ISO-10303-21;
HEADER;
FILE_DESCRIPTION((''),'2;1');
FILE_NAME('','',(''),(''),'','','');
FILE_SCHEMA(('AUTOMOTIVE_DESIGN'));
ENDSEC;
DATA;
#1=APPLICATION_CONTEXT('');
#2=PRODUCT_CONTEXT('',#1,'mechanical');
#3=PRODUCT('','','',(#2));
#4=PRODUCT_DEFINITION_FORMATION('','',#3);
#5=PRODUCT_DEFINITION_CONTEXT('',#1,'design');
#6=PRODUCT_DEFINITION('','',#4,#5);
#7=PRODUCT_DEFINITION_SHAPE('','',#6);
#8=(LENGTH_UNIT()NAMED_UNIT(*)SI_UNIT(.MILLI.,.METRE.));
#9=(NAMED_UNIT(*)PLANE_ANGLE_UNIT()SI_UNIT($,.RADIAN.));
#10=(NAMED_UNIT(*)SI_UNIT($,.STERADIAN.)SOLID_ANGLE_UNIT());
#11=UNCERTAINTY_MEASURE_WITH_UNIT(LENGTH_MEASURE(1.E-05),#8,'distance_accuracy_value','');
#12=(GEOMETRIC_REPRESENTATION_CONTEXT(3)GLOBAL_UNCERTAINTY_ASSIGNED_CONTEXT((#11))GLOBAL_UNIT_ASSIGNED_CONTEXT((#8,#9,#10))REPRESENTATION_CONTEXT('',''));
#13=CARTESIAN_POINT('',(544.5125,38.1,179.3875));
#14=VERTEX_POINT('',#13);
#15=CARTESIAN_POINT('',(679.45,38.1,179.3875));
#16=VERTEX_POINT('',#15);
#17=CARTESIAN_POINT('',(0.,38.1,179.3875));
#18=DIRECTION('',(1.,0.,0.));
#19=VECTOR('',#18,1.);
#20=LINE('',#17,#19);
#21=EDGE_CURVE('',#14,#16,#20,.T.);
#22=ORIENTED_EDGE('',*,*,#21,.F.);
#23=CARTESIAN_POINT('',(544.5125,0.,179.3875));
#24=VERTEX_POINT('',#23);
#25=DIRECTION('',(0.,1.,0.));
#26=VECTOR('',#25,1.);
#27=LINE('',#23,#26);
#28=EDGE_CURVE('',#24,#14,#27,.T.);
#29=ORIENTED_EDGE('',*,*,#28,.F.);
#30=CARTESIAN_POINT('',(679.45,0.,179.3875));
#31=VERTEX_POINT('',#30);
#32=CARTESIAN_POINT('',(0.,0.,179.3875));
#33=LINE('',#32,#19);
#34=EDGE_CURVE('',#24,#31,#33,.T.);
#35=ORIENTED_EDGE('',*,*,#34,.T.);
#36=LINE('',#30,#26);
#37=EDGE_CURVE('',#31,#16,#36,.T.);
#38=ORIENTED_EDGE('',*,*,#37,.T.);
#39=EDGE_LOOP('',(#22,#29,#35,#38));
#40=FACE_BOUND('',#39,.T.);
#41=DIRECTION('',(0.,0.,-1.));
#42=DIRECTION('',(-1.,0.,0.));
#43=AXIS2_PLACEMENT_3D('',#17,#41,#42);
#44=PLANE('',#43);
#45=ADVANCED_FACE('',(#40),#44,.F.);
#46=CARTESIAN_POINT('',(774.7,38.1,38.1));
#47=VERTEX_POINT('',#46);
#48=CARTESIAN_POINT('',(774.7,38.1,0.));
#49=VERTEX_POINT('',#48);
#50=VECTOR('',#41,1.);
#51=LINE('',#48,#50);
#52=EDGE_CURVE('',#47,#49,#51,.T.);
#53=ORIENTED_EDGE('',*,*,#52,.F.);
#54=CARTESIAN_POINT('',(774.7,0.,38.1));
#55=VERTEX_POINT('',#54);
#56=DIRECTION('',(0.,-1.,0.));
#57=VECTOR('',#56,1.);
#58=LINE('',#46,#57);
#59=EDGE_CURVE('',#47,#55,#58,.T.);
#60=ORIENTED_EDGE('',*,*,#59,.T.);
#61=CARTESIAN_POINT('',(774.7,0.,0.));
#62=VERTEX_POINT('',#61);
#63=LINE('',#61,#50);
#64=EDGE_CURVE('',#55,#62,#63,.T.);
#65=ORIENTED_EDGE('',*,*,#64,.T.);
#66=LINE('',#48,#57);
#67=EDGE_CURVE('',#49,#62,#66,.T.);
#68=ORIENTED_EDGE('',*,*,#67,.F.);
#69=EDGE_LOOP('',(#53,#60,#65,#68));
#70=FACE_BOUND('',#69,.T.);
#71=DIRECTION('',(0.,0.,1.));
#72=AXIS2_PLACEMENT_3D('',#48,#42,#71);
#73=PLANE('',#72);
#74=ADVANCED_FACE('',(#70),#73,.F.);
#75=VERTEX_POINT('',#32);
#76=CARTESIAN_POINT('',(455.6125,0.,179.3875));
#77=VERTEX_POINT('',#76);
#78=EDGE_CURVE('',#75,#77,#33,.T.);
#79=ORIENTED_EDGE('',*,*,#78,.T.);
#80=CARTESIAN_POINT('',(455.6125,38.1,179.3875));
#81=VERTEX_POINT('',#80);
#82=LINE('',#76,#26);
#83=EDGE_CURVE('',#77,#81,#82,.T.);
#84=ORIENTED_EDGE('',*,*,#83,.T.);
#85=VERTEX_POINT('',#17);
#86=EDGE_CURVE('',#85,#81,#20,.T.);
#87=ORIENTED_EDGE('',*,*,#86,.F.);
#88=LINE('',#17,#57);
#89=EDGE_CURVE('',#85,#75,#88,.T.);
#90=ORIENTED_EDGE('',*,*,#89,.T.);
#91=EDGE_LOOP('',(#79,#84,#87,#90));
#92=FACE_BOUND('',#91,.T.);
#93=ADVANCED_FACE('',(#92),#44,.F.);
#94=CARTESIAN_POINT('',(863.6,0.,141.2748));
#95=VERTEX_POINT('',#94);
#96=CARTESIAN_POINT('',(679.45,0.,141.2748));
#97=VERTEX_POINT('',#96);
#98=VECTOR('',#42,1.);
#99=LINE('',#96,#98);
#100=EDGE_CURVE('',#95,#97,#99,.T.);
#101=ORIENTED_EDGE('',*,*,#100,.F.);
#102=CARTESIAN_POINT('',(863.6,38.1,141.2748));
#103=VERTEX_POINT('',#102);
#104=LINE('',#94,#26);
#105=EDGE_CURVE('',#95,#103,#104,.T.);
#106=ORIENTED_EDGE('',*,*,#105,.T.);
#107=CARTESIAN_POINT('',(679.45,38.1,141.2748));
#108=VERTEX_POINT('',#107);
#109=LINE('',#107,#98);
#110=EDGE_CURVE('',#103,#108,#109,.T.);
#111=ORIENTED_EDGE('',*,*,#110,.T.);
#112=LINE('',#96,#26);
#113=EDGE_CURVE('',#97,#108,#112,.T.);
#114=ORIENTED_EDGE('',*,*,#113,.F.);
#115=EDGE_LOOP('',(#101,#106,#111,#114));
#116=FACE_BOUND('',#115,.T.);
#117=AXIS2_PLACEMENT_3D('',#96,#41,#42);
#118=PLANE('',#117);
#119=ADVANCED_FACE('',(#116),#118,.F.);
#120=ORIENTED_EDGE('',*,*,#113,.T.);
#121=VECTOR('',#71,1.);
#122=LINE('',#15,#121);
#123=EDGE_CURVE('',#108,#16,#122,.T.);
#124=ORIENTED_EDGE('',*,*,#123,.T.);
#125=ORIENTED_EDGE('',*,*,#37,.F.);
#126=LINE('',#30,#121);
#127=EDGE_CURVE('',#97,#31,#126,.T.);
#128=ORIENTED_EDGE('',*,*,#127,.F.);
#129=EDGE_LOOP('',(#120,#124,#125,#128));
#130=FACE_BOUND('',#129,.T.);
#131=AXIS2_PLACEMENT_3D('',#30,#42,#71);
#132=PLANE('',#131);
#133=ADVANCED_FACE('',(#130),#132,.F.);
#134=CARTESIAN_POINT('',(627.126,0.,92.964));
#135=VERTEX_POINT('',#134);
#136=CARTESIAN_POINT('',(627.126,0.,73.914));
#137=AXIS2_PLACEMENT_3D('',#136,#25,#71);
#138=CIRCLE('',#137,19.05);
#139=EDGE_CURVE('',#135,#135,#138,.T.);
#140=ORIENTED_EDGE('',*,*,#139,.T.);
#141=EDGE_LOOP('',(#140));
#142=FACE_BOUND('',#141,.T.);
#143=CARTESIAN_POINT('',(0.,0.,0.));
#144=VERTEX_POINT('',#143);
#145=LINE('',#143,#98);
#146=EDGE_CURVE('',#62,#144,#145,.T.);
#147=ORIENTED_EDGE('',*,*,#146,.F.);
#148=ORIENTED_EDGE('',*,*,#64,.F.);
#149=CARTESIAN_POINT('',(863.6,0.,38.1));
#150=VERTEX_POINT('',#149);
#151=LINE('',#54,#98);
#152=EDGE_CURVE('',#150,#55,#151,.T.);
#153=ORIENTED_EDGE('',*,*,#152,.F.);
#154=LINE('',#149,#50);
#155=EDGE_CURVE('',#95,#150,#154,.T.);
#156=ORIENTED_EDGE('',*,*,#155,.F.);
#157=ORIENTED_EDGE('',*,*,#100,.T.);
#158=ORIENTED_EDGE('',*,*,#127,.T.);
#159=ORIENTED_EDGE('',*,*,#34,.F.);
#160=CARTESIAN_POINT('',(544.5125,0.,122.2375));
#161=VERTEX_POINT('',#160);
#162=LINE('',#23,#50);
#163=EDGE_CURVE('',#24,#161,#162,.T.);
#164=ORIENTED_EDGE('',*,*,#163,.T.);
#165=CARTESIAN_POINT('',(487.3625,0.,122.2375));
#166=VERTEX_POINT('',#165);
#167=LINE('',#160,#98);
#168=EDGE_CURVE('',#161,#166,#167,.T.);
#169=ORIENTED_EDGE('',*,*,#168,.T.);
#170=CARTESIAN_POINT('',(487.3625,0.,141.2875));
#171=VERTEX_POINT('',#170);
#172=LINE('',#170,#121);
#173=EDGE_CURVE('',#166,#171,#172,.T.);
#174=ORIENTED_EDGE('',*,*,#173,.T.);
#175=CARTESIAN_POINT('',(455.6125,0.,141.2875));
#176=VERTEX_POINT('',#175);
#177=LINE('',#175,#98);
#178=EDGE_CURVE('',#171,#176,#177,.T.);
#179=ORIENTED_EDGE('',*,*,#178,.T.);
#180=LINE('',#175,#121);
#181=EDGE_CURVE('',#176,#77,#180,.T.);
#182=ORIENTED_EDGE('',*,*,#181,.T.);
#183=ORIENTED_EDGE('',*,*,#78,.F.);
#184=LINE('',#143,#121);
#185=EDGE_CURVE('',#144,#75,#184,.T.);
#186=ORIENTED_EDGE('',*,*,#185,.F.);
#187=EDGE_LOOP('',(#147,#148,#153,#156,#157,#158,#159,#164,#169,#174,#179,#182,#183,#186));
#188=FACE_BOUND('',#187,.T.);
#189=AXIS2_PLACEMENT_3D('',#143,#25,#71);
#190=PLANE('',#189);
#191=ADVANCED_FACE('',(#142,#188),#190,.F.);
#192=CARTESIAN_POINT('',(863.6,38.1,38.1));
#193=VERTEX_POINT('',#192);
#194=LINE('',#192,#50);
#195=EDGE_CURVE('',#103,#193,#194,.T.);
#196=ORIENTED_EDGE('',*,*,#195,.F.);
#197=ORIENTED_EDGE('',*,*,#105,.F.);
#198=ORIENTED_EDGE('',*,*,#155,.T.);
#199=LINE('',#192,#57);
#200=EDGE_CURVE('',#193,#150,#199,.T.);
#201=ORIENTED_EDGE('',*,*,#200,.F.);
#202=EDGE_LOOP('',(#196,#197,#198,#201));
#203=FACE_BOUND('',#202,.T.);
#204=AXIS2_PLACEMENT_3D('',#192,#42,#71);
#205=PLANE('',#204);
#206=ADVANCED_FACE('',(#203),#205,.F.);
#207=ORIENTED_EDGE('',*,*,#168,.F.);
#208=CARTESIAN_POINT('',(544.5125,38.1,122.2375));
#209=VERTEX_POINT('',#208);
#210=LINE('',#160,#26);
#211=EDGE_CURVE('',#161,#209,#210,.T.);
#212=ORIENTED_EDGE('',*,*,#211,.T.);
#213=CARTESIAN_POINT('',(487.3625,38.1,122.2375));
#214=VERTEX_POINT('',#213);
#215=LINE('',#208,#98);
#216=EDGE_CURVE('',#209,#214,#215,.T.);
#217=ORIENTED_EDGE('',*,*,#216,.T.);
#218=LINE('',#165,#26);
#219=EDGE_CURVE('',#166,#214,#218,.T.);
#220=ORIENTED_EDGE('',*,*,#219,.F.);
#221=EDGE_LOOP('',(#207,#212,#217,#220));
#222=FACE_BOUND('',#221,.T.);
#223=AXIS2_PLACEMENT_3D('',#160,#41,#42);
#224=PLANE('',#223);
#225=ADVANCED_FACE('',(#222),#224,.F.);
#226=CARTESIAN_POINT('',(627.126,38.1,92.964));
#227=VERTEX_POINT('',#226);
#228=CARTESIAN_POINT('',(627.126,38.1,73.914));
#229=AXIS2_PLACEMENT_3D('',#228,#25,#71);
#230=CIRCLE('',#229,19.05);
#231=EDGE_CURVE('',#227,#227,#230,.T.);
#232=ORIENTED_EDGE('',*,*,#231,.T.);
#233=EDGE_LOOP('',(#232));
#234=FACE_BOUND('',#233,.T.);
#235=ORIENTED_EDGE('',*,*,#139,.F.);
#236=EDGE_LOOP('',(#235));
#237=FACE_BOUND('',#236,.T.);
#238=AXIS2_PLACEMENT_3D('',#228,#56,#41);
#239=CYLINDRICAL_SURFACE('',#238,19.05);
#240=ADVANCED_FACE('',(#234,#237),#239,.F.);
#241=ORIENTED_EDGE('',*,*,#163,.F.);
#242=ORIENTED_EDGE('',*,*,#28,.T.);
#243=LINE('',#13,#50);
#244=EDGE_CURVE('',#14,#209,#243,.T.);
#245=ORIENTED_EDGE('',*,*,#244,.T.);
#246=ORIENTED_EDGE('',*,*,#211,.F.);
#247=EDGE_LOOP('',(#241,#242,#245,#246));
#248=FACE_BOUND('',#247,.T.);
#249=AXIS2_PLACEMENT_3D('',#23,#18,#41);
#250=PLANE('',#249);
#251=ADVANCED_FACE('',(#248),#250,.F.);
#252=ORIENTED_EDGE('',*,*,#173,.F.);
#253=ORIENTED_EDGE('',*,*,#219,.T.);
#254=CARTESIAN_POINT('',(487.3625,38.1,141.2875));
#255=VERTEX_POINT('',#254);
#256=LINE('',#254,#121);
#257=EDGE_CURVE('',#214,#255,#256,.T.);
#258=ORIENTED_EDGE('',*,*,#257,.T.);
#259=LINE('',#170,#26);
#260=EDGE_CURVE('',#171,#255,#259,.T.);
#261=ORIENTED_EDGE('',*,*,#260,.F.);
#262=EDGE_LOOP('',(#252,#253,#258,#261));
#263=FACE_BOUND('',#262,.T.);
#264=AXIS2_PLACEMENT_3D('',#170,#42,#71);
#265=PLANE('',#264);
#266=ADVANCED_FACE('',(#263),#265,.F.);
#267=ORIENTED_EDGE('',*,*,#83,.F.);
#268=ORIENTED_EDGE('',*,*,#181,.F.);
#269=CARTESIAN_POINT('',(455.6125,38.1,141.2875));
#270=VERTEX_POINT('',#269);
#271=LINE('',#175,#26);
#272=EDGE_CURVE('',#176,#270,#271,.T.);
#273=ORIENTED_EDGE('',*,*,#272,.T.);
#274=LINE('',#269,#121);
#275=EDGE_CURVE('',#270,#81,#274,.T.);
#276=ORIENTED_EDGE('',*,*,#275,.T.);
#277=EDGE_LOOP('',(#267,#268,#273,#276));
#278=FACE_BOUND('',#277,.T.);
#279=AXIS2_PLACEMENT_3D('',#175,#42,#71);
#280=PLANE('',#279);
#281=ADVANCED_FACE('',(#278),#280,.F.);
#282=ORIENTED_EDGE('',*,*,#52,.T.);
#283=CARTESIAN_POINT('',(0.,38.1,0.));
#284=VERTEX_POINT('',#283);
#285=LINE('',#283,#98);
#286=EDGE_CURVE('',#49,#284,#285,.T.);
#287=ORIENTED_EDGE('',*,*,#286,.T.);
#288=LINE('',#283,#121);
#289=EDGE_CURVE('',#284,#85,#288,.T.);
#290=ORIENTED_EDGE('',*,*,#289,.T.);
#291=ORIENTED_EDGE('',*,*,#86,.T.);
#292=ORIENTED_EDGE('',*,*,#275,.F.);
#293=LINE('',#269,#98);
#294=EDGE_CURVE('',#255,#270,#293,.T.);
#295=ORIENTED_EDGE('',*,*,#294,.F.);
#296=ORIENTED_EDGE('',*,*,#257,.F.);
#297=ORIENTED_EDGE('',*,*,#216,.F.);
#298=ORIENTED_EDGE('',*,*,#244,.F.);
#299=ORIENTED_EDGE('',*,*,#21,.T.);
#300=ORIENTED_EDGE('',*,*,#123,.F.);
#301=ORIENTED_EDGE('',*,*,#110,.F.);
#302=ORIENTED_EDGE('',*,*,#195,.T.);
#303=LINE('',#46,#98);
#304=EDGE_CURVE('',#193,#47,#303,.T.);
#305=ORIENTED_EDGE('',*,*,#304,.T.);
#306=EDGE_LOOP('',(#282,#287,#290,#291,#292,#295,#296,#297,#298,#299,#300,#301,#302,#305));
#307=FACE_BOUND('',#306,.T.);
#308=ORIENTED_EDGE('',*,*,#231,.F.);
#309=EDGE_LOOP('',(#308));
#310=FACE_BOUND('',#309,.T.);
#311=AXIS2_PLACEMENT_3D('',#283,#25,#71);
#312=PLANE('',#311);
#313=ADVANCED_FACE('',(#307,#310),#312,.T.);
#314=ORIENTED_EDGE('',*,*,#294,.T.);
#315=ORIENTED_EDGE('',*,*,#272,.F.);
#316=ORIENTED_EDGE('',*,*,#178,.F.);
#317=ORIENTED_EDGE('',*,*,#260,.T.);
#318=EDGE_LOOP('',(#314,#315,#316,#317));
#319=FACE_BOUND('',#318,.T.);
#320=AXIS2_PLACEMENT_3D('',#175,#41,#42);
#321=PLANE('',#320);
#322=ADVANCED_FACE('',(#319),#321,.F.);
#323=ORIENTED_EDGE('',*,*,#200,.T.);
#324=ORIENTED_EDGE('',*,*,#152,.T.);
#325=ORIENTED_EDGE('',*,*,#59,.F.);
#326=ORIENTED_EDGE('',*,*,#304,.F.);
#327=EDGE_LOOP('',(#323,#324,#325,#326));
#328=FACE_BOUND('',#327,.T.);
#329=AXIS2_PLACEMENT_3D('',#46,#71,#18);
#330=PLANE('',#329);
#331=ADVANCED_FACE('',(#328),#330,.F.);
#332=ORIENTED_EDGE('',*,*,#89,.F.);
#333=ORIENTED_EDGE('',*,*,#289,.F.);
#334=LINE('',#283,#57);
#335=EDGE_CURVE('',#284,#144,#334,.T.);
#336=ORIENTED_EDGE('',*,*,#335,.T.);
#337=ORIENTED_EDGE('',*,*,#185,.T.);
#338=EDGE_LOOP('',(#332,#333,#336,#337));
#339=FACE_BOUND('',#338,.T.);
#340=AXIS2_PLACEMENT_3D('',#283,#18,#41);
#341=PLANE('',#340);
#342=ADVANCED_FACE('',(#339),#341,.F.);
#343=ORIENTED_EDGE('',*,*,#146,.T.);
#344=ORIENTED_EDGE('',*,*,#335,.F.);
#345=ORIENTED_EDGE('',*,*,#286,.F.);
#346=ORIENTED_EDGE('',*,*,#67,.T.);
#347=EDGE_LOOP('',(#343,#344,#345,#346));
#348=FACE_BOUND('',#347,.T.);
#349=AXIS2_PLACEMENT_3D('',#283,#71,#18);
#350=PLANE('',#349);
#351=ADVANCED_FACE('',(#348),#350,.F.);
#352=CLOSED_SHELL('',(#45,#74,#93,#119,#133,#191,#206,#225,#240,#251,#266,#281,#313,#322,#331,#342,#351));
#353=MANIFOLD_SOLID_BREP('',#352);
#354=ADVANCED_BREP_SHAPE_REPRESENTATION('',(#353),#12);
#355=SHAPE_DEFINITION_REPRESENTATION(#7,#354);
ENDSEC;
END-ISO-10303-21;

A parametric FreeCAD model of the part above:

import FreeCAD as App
import Part
import Sketcher
from FreeCAD import Vector
Q = App.Units.Quantity

doc = App.newDocument("Part")
params = doc.addObject("Spreadsheet::Sheet", "Params")
for row, (alias, value) in enumerate([
    ("sketch1_diameter", "1.5 in"),
    ("sketch1_width", "34 in"),
    ("sketch1_width2", "30.5 in"),
    ("sketch1_height", "1.5 in"),
    ("sketch1_height2", "7.0625 in"),
    ("pad1_length", "1.5 in"),
    ("sketch2_width", "3.5 in"),
    ("sketch2_height", "1.5 in"),
    ("sketch2_width2", "1.25 in"),
    ("sketch3_width", "7.25 in"),
], start=1):
    params.set(f"A{row}", alias)
    params.set(f"B{row}", "=" + value)
    params.setAlias(f"B{row}", alias)

body = doc.addObject("PartDesign::Body", "Body")

sketch1 = body.newObject("Sketcher::SketchObject", "Sketch")
sketch1.AttachmentSupport = (doc.getObject("XZ_Plane"), [""])
sketch1.MapMode = "FlatFace"
sketch1.addGeometry(Part.LineSegment(Vector(775, 0, 0), Vector(0, 0, 0)), False)
sketch1.addGeometry(Part.LineSegment(Vector(0, 0, 0), Vector(0, 179, 0)), False)
sketch1.addGeometry(Part.LineSegment(Vector(0, 179, 0), Vector(864, 179, 0)), False)
sketch1.addGeometry(Part.LineSegment(Vector(864, 179, 0), Vector(864, 38, 0)), False)
sketch1.addGeometry(Part.LineSegment(Vector(864, 38, 0), Vector(775, 38, 0)), False)
sketch1.addGeometry(Part.LineSegment(Vector(775, 38, 0), Vector(775, 0, 0)), False)
sketch1.addGeometry(Part.Circle(Vector(627, 74, 0), Vector(0, 0, 1), 19), False)
sketch1.addConstraint(Sketcher.Constraint("Coincident", 0, 2, 1, 1))
sketch1.addConstraint(Sketcher.Constraint("Coincident", 1, 2, 2, 1))
sketch1.addConstraint(Sketcher.Constraint("Coincident", 2, 2, 3, 1))
sketch1.addConstraint(Sketcher.Constraint("Coincident", 3, 2, 4, 1))
sketch1.addConstraint(Sketcher.Constraint("Coincident", 4, 2, 5, 1))
sketch1.addConstraint(Sketcher.Constraint("Coincident", 5, 2, 0, 1))
sketch1.addConstraint(Sketcher.Constraint("Horizontal", 0))
sketch1.addConstraint(Sketcher.Constraint("Vertical", 1))
sketch1.addConstraint(Sketcher.Constraint("Horizontal", 2))
sketch1.addConstraint(Sketcher.Constraint("Vertical", 3))
sketch1.addConstraint(Sketcher.Constraint("Horizontal", 4))
sketch1.addConstraint(Sketcher.Constraint("Vertical", 5))
sketch1.addConstraint(Sketcher.Constraint("Coincident", 0, 2, -1, 1))
sketch1.addConstraint(Sketcher.Constraint("Diameter", 6, Q("1.5 in")))
sketch1.addConstraint(Sketcher.Constraint("DistanceX", 2, 1, 2, 2, Q("34 in")))
sketch1.addConstraint(Sketcher.Constraint("DistanceX", 0, 2, 0, 1, Q("30.5 in")))
sketch1.addConstraint(Sketcher.Constraint("DistanceY", 5, 2, 5, 1, Q("1.5 in")))
sketch1.addConstraint(Sketcher.Constraint("DistanceY", 1, 1, 1, 2, Q("7.0625 in")))
sketch1.addConstraint(Sketcher.Constraint("DistanceX", -1, 1, 6, 3, Q("24.69 in")))
sketch1.addConstraint(Sketcher.Constraint("DistanceY", -1, 1, 6, 3, Q("2.91 in")))
sketch1.setExpression("Constraints[13]", "Params.sketch1_diameter")
sketch1.setExpression("Constraints[14]", "Params.sketch1_width")
sketch1.setExpression("Constraints[15]", "Params.sketch1_width2")
sketch1.setExpression("Constraints[16]", "Params.sketch1_height")
sketch1.setExpression("Constraints[17]", "Params.sketch1_height2")
pad1 = body.newObject("PartDesign::Pad", "Pad")
pad1.Profile = sketch1
pad1.setExpression("Length", "Params.pad1_length")
pad1.Reversed = True

sketch2 = body.newObject("Sketcher::SketchObject", "Sketch001")
sketch2.AttachmentSupport = (doc.getObject("XZ_Plane"), [""])
sketch2.MapMode = "FlatFace"
sketch2.AttachmentOffset = App.Placement(Vector(0, 0, -1.5 * 25.4), App.Rotation())
sketch2.addGeometry(Part.LineSegment(Vector(487, 141, 0), Vector(456, 141, 0)), False)
sketch2.addGeometry(Part.LineSegment(Vector(456, 141, 0), Vector(456, 179, 0)), False)
sketch2.addGeometry(Part.LineSegment(Vector(456, 179, 0), Vector(545, 179, 0)), False)
sketch2.addGeometry(Part.LineSegment(Vector(545, 179, 0), Vector(545, 122, 0)), False)
sketch2.addGeometry(Part.LineSegment(Vector(545, 122, 0), Vector(487, 122, 0)), False)
sketch2.addGeometry(Part.LineSegment(Vector(487, 122, 0), Vector(487, 141, 0)), False)
sketch2.addConstraint(Sketcher.Constraint("Coincident", 0, 2, 1, 1))
sketch2.addConstraint(Sketcher.Constraint("Coincident", 1, 2, 2, 1))
sketch2.addConstraint(Sketcher.Constraint("Coincident", 2, 2, 3, 1))
sketch2.addConstraint(Sketcher.Constraint("Coincident", 3, 2, 4, 1))
sketch2.addConstraint(Sketcher.Constraint("Coincident", 4, 2, 5, 1))
sketch2.addConstraint(Sketcher.Constraint("Coincident", 5, 2, 0, 1))
sketch2.addConstraint(Sketcher.Constraint("Horizontal", 0))
sketch2.addConstraint(Sketcher.Constraint("Vertical", 1))
sketch2.addConstraint(Sketcher.Constraint("Horizontal", 2))
sketch2.addConstraint(Sketcher.Constraint("Vertical", 3))
sketch2.addConstraint(Sketcher.Constraint("Horizontal", 4))
sketch2.addConstraint(Sketcher.Constraint("Vertical", 5))
sketch2.addConstraint(Sketcher.Constraint("Equal", 4, 3))
sketch2.addConstraint(Sketcher.Constraint("DistanceX", 2, 1, 2, 2, Q("3.5 in")))
sketch2.addConstraint(Sketcher.Constraint("DistanceY", 1, 1, 1, 2, Q("1.5 in")))
sketch2.addConstraint(Sketcher.Constraint("DistanceX", 0, 2, 0, 1, Q("1.25 in")))
sketch2.addConstraint(Sketcher.Constraint("DistanceX", -1, 1, 0, 2, Q("17.9375 in")))
sketch2.addConstraint(Sketcher.Constraint("DistanceY", -1, 1, 0, 2, Q("5.5625 in")))
sketch2.setExpression("Constraints[13]", "Params.sketch2_width")
sketch2.setExpression("Constraints[14]", "Params.sketch2_height")
sketch2.setExpression("Constraints[15]", "Params.sketch2_width2")
pocket1 = body.newObject("PartDesign::Pocket", "Pocket")
pocket1.Profile = sketch2
pocket1.Type = "ThroughAll"
pocket1.Reversed = True

sketch3 = body.newObject("Sketcher::SketchObject", "Sketch002")
sketch3.AttachmentSupport = (doc.getObject("XZ_Plane"), [""])
sketch3.MapMode = "FlatFace"
sketch3.AttachmentOffset = App.Placement(Vector(0, 0, -1.5 * 25.4), App.Rotation())
sketch3.addGeometry(Part.LineSegment(Vector(679, 141, 0), Vector(679, 179, 0)), False)
sketch3.addGeometry(Part.LineSegment(Vector(679, 179, 0), Vector(864, 179, 0)), False)
sketch3.addGeometry(Part.LineSegment(Vector(864, 179, 0), Vector(864, 141, 0)), False)
sketch3.addGeometry(Part.LineSegment(Vector(864, 141, 0), Vector(679, 141, 0)), False)
sketch3.addConstraint(Sketcher.Constraint("Coincident", 0, 2, 1, 1))
sketch3.addConstraint(Sketcher.Constraint("Coincident", 1, 2, 2, 1))
sketch3.addConstraint(Sketcher.Constraint("Coincident", 2, 2, 3, 1))
sketch3.addConstraint(Sketcher.Constraint("Coincident", 3, 2, 0, 1))
sketch3.addConstraint(Sketcher.Constraint("Vertical", 0))
sketch3.addConstraint(Sketcher.Constraint("Horizontal", 1))
sketch3.addConstraint(Sketcher.Constraint("Vertical", 2))
sketch3.addConstraint(Sketcher.Constraint("Horizontal", 3))
sketch3.addConstraint(Sketcher.Constraint("DistanceX", -1, 1, 1, 2, Q("34 in")))
sketch3.addConstraint(Sketcher.Constraint("DistanceX", 1, 1, 1, 2, Q("7.25 in")))
sketch3.addConstraint(Sketcher.Constraint("DistanceY", 0, 1, 0, 2, Q("1.5005 in")))
sketch3.addConstraint(Sketcher.Constraint("DistanceY", -1, 1, 0, 2, Q("7.0625 in")))
sketch3.setExpression("Constraints[9]", "Params.sketch3_width")
pocket2 = body.newObject("PartDesign::Pocket", "Pocket001")
pocket2.Profile = sketch3
pocket2.Type = "ThroughAll"
pocket2.Reversed = True

doc.recompute()
